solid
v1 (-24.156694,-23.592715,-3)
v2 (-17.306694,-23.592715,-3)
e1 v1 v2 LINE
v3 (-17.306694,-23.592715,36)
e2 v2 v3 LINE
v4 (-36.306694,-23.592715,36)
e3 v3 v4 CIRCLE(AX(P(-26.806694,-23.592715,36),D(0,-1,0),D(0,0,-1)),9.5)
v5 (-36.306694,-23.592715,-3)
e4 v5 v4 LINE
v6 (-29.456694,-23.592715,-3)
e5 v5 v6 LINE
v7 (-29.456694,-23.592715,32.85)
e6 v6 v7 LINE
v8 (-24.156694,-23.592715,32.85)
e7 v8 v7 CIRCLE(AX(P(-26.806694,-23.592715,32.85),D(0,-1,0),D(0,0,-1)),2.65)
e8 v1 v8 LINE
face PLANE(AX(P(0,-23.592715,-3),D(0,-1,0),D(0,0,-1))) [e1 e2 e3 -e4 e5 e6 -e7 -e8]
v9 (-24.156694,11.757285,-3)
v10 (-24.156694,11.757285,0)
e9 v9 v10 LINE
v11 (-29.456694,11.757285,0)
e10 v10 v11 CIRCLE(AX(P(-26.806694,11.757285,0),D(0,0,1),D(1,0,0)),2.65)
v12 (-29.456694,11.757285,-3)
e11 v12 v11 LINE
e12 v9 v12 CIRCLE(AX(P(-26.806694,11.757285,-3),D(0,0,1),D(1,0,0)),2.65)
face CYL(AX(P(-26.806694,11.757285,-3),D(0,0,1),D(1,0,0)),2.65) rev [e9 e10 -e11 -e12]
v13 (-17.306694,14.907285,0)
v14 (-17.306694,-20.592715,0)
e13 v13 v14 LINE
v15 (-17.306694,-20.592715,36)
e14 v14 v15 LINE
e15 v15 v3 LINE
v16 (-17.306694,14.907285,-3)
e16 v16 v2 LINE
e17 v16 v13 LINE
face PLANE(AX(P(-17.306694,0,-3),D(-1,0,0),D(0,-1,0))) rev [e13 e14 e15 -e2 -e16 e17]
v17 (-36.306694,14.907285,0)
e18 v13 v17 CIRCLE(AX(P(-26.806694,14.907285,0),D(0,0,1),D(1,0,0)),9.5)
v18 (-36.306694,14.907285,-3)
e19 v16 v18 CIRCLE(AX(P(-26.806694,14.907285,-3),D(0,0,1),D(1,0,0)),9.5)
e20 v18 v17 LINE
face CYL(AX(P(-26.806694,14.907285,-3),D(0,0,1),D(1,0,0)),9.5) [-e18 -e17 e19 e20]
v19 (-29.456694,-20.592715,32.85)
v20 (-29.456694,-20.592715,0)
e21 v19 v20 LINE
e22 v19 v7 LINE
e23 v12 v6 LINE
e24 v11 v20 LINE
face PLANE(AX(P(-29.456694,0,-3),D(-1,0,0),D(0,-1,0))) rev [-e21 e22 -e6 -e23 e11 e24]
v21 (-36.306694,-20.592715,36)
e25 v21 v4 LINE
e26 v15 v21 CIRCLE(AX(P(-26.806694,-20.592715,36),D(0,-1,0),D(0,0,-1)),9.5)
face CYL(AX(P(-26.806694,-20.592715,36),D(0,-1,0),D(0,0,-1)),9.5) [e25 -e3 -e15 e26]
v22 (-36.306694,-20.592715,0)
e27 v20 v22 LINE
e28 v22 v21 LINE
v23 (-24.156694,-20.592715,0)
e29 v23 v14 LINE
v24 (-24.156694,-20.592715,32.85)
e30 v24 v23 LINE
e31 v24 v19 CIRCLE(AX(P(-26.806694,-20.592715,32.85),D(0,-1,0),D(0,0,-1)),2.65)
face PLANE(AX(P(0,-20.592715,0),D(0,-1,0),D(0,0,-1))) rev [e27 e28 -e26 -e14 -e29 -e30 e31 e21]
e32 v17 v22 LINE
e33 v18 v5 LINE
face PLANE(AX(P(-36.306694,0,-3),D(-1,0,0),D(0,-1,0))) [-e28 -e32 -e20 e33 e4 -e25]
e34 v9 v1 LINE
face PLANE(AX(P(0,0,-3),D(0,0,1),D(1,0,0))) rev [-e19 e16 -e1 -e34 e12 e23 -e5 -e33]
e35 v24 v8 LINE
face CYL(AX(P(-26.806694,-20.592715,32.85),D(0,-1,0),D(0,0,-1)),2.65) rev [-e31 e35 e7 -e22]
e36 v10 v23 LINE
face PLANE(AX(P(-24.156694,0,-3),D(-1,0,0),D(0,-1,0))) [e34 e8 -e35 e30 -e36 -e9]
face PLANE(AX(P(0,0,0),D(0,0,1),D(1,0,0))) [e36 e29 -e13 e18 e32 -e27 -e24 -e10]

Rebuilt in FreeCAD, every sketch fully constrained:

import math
import FreeCAD as App
import Part
import Sketcher

V = App.Vector
Q = App.Units.Quantity

doc = App.newDocument("Part")
body = doc.addObject("PartDesign::Body", "Body")

sketch1 = doc.addObject("Sketcher::SketchObject", "Sketch")
body.addObject(sketch1)
sketch1.AttachmentSupport = (doc.XY_Plane, [""])
sketch1.MapMode = "FlatFace"
sketch1.addGeometry(Part.ArcOfCircle(Part.Circle(V(-26.806694, 14.907285, 0), V(0, 0, 1), 9.5), math.radians(0), math.radians(180)), False)
sketch1.addGeometry(Part.LineSegment(V(-36.306694, 14.907285, 0), V(-36.306694, -23.592715, 0)), False)
sketch1.addGeometry(Part.LineSegment(V(-36.306694, -23.592715, 0), V(-29.456694, -23.592715, 0)), False)
sketch1.addGeometry(Part.LineSegment(V(-29.456694, -23.592715, 0), V(-29.456694, 11.757285, 0)), False)
sketch1.addGeometry(Part.ArcOfCircle(Part.Circle(V(-26.806694, 11.757285, 0), V(0, 0, 1), 2.65), math.radians(0), math.radians(180)), False)
sketch1.addGeometry(Part.LineSegment(V(-24.156694, 11.757285, 0), V(-24.156694, -23.592715, 0)), False)
sketch1.addGeometry(Part.LineSegment(V(-24.156694, -23.592715, 0), V(-17.306694, -23.592715, 0)), False)
sketch1.addGeometry(Part.LineSegment(V(-17.306694, -23.592715, 0), V(-17.306694, 14.907285, 0)), False)
sketch1.addConstraint(Sketcher.Constraint("Tangent", 0, 2, 1, 1))
sketch1.addConstraint(Sketcher.Constraint("Coincident", 1, 2, 2, 1))
sketch1.addConstraint(Sketcher.Constraint("Coincident", 2, 2, 3, 1))
sketch1.addConstraint(Sketcher.Constraint("Tangent", 3, 2, 4, 2))
sketch1.addConstraint(Sketcher.Constraint("Tangent", 4, 1, 5, 1))
sketch1.addConstraint(Sketcher.Constraint("Coincident", 5, 2, 6, 1))
sketch1.addConstraint(Sketcher.Constraint("Coincident", 6, 2, 7, 1))
sketch1.addConstraint(Sketcher.Constraint("Tangent", 7, 2, 0, 1))
sketch1.addConstraint(Sketcher.Constraint("Vertical", 1))
sketch1.addConstraint(Sketcher.Constraint("Horizontal", 2))
sketch1.addConstraint(Sketcher.Constraint("Vertical", 3))
sketch1.addConstraint(Sketcher.Constraint("Vertical", 5))
sketch1.addConstraint(Sketcher.Constraint("Horizontal", 6))
sketch1.addConstraint(Sketcher.Constraint("Vertical", 7))
sketch1.addConstraint(Sketcher.Constraint("Horizontal", 2, 2, 5, 2))
sketch1.addConstraint(Sketcher.Constraint("Vertical", 0, 3, 4, 3))
sketch1.addConstraint(Sketcher.Constraint("Radius", 0, Q("9.5 mm")))
sketch1.addConstraint(Sketcher.Constraint("Radius", 4, Q("2.65 mm")))
sketch1.addConstraint(Sketcher.Constraint("DistanceY", 1, 2, 1, 1, Q("38.5 mm")))
sketch1.addConstraint(Sketcher.Constraint("DistanceY", 3, 1, 3, 2, Q("35.35 mm")))
sketch1.addConstraint(Sketcher.Constraint("DistanceX", 0, 3, -1, 1, Q("26.806694 mm")))
sketch1.addConstraint(Sketcher.Constraint("DistanceY", -1, 1, 0, 3, Q("14.907285 mm")))
pad1 = doc.addObject("PartDesign::Pad", "Pad")
body.addObject(pad1)
pad1.Profile = sketch1
pad1.Length = 3
pad1.Reversed = True

sketch2 = doc.addObject("Sketcher::SketchObject", "Sketch001")
body.addObject(sketch2)
sketch2.AttachmentSupport = (doc.XZ_Plane, [""])
sketch2.MapMode = "FlatFace"
sketch2.AttachmentOffset = App.Placement(V(0, 0, 23.592715), App.Rotation())
sketch2.addGeometry(Part.ArcOfCircle(Part.Circle(V(-26.806694, 36, 0), V(0, 0, 1), 9.5), math.radians(147.416214), math.radians(180)), False)
sketch2.addGeometry(Part.LineSegment(V(-36.306694, 36, 0), V(-36.306694, 0, 0)), False)
sketch2.addGeometry(Part.LineSegment(V(-36.306694, 0, 0), V(-29.456694, 0, 0)), False)
sketch2.addGeometry(Part.LineSegment(V(-29.456694, 0, 0), V(-29.456694, 32.85, 0)), False)
sketch2.addGeometry(Part.ArcOfCircle(Part.Circle(V(-26.806694, 32.85, 0), V(0, 0, 1), 2.65), math.radians(0), math.radians(180)), False)
sketch2.addGeometry(Part.LineSegment(V(-24.156694, 32.85, 0), V(-24.156694, -3, 0)), False)
sketch2.addGeometry(Part.LineSegment(V(-24.156694, -3, 0), V(-17.306694, -3, 0)), False)
sketch2.addGeometry(Part.LineSegment(V(-17.306694, -3, 0), V(-17.306694, 36, 0)), False)
sketch2.addGeometry(Part.ArcOfCircle(Part.Circle(V(-26.806694, 36, 0), V(0, 0, 1), 9.5), math.radians(0), math.radians(32.583786)), False)
sketch2.addGeometry(Part.ArcOfCircle(Part.Circle(V(-26.806694, 36, 0), V(0, 0, 1), 9.5), math.radians(32.583786), math.radians(147.416214)), False)
sketch2.addConstraint(Sketcher.Constraint("Tangent", 0, 2, 1, 1))
sketch2.addConstraint(Sketcher.Constraint("Coincident", 1, 2, 2, 1))
sketch2.addConstraint(Sketcher.Constraint("Coincident", 2, 2, 3, 1))
sketch2.addConstraint(Sketcher.Constraint("Tangent", 3, 2, 4, 2))
sketch2.addConstraint(Sketcher.Constraint("Tangent", 4, 1, 5, 1))
sketch2.addConstraint(Sketcher.Constraint("Coincident", 5, 2, 6, 1))
sketch2.addConstraint(Sketcher.Constraint("Coincident", 6, 2, 7, 1))
sketch2.addConstraint(Sketcher.Constraint("Tangent", 7, 2, 8, 1))
sketch2.addConstraint(Sketcher.Constraint("Tangent", 8, 2, 9, 1))
sketch2.addConstraint(Sketcher.Constraint("Tangent", 9, 2, 0, 1))
sketch2.addConstraint(Sketcher.Constraint("Vertical", 1))
sketch2.addConstraint(Sketcher.Constraint("Horizontal", 2))
sketch2.addConstraint(Sketcher.Constraint("Vertical", 3))
sketch2.addConstraint(Sketcher.Constraint("Vertical", 5))
sketch2.addConstraint(Sketcher.Constraint("Horizontal", 6))
sketch2.addConstraint(Sketcher.Constraint("Vertical", 7))
sketch2.addConstraint(Sketcher.Constraint("Coincident", 8, 3, 0, 3))
sketch2.addConstraint(Sketcher.Constraint("PointOnObject", 1, 2, -1))
sketch2.addConstraint(Sketcher.Constraint("Horizontal", 8, 2, 9, 2))
sketch2.addConstraint(Sketcher.Constraint("Vertical", 0, 3, 4, 3))
sketch2.addConstraint(Sketcher.Constraint("Radius", 0, Q("9.5 mm")))
sketch2.addConstraint(Sketcher.Constraint("DistanceY", 1, 2, 1, 1, Q("36 mm")))
sketch2.addConstraint(Sketcher.Constraint("DistanceY", 7, 1, 7, 2, Q("39 mm")))
sketch2.addConstraint(Sketcher.Constraint("Radius", 4, Q("2.65 mm")))
sketch2.addConstraint(Sketcher.Constraint("DistanceY", 3, 1, 3, 2, Q("32.85 mm")))
sketch2.addConstraint(Sketcher.Constraint("DistanceX", 9, 2, -1, 1, Q("34.81144 mm")))
sketch2.addConstraint(Sketcher.Constraint("DistanceX", 0, 3, -1, 1, Q("26.806694 mm")))
pad2 = doc.addObject("PartDesign::Pad", "Pad001")
body.addObject(pad2)
pad2.Profile = sketch2
pad2.Length = 3
pad2.Reversed = True

doc.recompute()
